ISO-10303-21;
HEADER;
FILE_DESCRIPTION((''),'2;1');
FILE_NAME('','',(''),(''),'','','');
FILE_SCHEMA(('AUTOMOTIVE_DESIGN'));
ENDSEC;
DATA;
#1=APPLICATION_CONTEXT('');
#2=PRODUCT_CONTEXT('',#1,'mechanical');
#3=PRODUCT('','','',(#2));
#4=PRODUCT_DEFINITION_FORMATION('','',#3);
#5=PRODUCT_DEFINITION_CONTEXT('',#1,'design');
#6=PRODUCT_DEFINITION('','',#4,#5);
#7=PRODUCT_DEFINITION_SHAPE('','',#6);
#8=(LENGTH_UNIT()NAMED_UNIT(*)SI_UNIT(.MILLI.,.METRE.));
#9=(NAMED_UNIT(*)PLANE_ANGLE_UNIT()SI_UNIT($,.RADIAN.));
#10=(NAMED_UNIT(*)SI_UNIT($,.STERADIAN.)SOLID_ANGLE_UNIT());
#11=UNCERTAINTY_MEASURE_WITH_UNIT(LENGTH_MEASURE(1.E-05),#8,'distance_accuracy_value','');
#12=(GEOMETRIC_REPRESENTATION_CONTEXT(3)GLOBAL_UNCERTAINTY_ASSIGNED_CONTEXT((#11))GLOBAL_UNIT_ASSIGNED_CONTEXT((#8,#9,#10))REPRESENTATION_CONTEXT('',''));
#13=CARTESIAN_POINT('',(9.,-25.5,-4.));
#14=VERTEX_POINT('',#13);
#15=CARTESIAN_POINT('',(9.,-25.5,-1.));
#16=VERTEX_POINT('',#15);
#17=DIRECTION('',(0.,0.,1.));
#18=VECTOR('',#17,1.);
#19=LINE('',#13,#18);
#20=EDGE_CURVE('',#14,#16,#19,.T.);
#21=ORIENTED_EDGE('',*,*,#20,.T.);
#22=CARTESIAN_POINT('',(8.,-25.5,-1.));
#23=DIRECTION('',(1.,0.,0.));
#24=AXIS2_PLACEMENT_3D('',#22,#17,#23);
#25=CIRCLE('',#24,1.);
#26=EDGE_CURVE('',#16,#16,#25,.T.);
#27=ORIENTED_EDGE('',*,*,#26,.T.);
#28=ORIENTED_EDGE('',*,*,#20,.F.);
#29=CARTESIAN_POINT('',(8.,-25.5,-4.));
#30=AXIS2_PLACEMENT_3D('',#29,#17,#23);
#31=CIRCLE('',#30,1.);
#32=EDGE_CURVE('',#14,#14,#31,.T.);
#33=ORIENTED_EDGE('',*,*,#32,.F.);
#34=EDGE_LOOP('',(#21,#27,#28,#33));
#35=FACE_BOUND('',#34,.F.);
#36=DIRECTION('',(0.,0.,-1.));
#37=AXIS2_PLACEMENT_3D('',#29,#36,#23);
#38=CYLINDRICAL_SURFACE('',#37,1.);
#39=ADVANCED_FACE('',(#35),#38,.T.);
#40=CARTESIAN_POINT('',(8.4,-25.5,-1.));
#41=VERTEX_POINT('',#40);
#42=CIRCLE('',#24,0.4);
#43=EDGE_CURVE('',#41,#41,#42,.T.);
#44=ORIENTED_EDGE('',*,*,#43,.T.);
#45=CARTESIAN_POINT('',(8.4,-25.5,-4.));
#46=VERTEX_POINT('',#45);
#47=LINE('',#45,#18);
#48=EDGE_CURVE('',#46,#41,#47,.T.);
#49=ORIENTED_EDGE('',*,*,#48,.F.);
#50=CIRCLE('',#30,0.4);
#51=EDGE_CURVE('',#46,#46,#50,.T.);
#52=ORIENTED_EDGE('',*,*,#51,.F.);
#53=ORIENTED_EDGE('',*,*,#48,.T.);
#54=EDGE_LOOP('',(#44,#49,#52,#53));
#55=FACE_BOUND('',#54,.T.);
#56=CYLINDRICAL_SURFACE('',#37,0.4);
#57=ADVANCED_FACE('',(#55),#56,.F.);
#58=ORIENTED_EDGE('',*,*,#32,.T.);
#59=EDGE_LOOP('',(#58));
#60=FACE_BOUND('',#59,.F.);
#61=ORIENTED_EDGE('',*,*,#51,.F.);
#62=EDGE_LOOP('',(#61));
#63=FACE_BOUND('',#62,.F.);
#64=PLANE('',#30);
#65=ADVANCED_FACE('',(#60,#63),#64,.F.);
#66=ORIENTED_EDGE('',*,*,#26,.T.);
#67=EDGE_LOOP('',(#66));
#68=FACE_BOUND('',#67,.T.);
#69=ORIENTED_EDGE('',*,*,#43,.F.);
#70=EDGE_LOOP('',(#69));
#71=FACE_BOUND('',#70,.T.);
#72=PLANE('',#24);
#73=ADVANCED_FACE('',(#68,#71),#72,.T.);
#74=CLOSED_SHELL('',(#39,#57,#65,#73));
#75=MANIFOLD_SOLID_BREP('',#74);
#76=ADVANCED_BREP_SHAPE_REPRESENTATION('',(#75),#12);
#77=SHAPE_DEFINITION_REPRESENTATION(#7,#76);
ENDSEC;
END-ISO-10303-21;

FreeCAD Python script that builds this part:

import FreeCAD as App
import Part
import Sketcher

V = App.Vector

doc = App.newDocument("Part")
params = doc.addObject("Spreadsheet::Sheet", "Params")
for row, (alias, value) in enumerate([
    ("sketch1_diameter", "0.8 mm"),
    ("pad1_length", "3 mm"),
    ("sketch2_diameter", "2 mm"),
    ("pad2_length", "3 mm"),
], start=1):
    params.set(f"A{row}", alias)
    params.set(f"B{row}", "=" + value)
    params.setAlias(f"B{row}", alias)

body = doc.addObject("PartDesign::Body", "Body")

# Sketch on XY plane
sketch1 = body.newObject("Sketcher::SketchObject", "Sketch")
sketch1.AttachmentSupport = (doc.getObject("XY_Plane"), [""])
sketch1.MapMode = "FlatFace"
sketch1.AttachmentOffset = App.Placement(V(0, 0, -4), App.Rotation())
sketch1.addGeometry(Part.Circle(V(8, -25.5, 0), V(0, 0, 1), 0.4), False)
sketch1.addConstraint([
    Sketcher.Constraint("Diameter", 0, 0.8),
    Sketcher.Constraint("DistanceX", -1, 1, 0, 3, 8.0),
    Sketcher.Constraint("DistanceY", 0, 3, -1, 1, 25.5),
])
sketch1.setExpression("Constraints[0]", "Params.sketch1_diameter")
pad1 = body.newObject("PartDesign::Pad", "Pad")
pad1.Profile = sketch1
pad1.setExpression("Length", "Params.pad1_length")
body2 = doc.addObject("PartDesign::Body", "Body001")

# Sketch on XY plane
sketch2 = body2.newObject("Sketcher::SketchObject", "Sketch001")
sketch2.AttachmentSupport = (doc.getObject("XY_Plane001"), [""])
sketch2.MapMode = "FlatFace"
sketch2.AttachmentOffset = App.Placement(V(0, 0, -4), App.Rotation())
sketch2.addGeometry(Part.Circle(V(8, -25.5, 0), V(0, 0, 1), 1), False)
sketch2.addConstraint([
    Sketcher.Constraint("Diameter", 0, 2.0),
    Sketcher.Constraint("DistanceX", -1, 1, 0, 3, 8.0),
    Sketcher.Constraint("DistanceY", 0, 3, -1, 1, 25.5),
])
sketch2.setExpression("Constraints[0]", "Params.sketch2_diameter")
pad2 = body2.newObject("PartDesign::Pad", "Pad001")
pad2.Profile = sketch2
pad2.setExpression("Length", "Params.pad2_length")
doc.recompute()

boolean = body2.newObject("PartDesign::Boolean", "Boolean")
boolean.Type = "Cut"
boolean.addObjects([body])

doc.recompute()
